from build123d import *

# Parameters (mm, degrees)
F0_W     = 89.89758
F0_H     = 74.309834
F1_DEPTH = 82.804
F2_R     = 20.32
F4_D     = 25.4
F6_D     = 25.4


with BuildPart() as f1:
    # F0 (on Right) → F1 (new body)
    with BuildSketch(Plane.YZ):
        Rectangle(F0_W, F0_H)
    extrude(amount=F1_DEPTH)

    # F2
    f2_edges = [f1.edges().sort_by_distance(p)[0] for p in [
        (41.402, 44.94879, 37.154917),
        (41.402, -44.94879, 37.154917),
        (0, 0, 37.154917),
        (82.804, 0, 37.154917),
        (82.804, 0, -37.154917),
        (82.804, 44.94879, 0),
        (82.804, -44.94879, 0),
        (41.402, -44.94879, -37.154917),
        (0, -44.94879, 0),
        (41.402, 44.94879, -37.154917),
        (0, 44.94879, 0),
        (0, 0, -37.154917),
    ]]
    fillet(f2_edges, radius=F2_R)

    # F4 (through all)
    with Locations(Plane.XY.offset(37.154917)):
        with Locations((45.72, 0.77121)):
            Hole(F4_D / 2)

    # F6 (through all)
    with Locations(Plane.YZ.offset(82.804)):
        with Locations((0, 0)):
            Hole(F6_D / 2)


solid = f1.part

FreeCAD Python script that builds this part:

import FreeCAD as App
import Part
import Sketcher
from FreeCAD import Vector
Q = App.Units.Quantity

doc = App.newDocument("Part")
body = doc.addObject("PartDesign::Body", "Body")

# Sketch on YZ plane
sketch1 = body.newObject("Sketcher::SketchObject", "Sketch")
sketch1.AttachmentSupport = (doc.getObject("YZ_Plane"), [""])
sketch1.MapMode = "FlatFace"
sketch1.addGeometry([
    Part.LineSegment(Vector(-45, 37, 0), Vector(-45, -37, 0)),
    Part.LineSegment(Vector(-45, -37, 0), Vector(45, -37, 0)),
    Part.LineSegment(Vector(45, -37, 0), Vector(45, 37, 0)),
    Part.LineSegment(Vector(45, 37, 0), Vector(-45, 37, 0)),
], False)
sketch1.addConstraint([
    Sketcher.Constraint("Coincident", 0, 2, 1, 1),
    Sketcher.Constraint("Coincident", 1, 2, 2, 1),
    Sketcher.Constraint("Coincident", 2, 2, 3, 1),
    Sketcher.Constraint("Coincident", 3, 2, 0, 1),
    Sketcher.Constraint("Vertical", 0),
    Sketcher.Constraint("Horizontal", 1),
    Sketcher.Constraint("Vertical", 2),
    Sketcher.Constraint("Horizontal", 3),
    Sketcher.Constraint("Symmetric", 0, 2, 2, 2, -1, 1),
    Sketcher.Constraint("DistanceX", 1, 1, 1, 2, 89.89758),
    Sketcher.Constraint("DistanceY", 0, 2, 0, 1, 74.309834),
])
pad1 = body.newObject("PartDesign::Pad", "Pad")
pad1.Profile = sketch1
pad1.Length = Q("3.26 in")
doc.recompute()

fillet = body.newObject("PartDesign::Fillet", "Fillet")
fillet.Base = (pad1, ["Edge1"])
fillet.UseAllEdges = True
fillet.Radius = Q("0.8 in")

# Sketch on XY plane
sketch2 = body.newObject("Sketcher::SketchObject", "Sketch001")
sketch2.AttachmentSupport = (doc.getObject("XY_Plane"), [""])
sketch2.MapMode = "FlatFace"
sketch2.AttachmentOffset = App.Placement(Vector(0, 0, 37.154917), App.Rotation())
sketch2.addGeometry(Part.Circle(Vector(46, 1, 0), Vector(0, 0, 1), 13), False)
sketch2.addConstraint([
    Sketcher.Constraint("Diameter", 0, Q("1 in")),
    Sketcher.Constraint("DistanceX", -1, 1, 0, 3, Q("1.8 in")),
    Sketcher.Constraint("DistanceY", -1, 1, 0, 3, 0.77121),
])
doc.recompute()
hole = body.newObject("PartDesign::Hole", "Hole")
hole.Profile = sketch2
hole.ThreadType = "None"
hole.Diameter = Q("1 in")
hole.DepthType = "ThroughAll"

# Sketch on YZ plane
sketch3 = body.newObject("Sketcher::SketchObject", "Sketch002")
sketch3.AttachmentSupport = (doc.getObject("YZ_Plane"), [""])
sketch3.MapMode = "FlatFace"
sketch3.AttachmentOffset = App.Placement(Vector(0, 0, 3.26 * 25.4), App.Rotation())
sketch3.addGeometry(Part.Circle(Vector(0, 0, 0), Vector(0, 0, 1), 13), False)
sketch3.addConstraint([
    Sketcher.Constraint("Coincident", 0, 3, -1, 1),
    Sketcher.Constraint("Diameter", 0, Q("1 in")),
])
doc.recompute()
hole2 = body.newObject("PartDesign::Hole", "Hole001")
hole2.Profile = sketch3
hole2.ThreadType = "None"
hole2.Diameter = Q("1 in")
hole2.DepthType = "ThroughAll"

doc.recompute()
